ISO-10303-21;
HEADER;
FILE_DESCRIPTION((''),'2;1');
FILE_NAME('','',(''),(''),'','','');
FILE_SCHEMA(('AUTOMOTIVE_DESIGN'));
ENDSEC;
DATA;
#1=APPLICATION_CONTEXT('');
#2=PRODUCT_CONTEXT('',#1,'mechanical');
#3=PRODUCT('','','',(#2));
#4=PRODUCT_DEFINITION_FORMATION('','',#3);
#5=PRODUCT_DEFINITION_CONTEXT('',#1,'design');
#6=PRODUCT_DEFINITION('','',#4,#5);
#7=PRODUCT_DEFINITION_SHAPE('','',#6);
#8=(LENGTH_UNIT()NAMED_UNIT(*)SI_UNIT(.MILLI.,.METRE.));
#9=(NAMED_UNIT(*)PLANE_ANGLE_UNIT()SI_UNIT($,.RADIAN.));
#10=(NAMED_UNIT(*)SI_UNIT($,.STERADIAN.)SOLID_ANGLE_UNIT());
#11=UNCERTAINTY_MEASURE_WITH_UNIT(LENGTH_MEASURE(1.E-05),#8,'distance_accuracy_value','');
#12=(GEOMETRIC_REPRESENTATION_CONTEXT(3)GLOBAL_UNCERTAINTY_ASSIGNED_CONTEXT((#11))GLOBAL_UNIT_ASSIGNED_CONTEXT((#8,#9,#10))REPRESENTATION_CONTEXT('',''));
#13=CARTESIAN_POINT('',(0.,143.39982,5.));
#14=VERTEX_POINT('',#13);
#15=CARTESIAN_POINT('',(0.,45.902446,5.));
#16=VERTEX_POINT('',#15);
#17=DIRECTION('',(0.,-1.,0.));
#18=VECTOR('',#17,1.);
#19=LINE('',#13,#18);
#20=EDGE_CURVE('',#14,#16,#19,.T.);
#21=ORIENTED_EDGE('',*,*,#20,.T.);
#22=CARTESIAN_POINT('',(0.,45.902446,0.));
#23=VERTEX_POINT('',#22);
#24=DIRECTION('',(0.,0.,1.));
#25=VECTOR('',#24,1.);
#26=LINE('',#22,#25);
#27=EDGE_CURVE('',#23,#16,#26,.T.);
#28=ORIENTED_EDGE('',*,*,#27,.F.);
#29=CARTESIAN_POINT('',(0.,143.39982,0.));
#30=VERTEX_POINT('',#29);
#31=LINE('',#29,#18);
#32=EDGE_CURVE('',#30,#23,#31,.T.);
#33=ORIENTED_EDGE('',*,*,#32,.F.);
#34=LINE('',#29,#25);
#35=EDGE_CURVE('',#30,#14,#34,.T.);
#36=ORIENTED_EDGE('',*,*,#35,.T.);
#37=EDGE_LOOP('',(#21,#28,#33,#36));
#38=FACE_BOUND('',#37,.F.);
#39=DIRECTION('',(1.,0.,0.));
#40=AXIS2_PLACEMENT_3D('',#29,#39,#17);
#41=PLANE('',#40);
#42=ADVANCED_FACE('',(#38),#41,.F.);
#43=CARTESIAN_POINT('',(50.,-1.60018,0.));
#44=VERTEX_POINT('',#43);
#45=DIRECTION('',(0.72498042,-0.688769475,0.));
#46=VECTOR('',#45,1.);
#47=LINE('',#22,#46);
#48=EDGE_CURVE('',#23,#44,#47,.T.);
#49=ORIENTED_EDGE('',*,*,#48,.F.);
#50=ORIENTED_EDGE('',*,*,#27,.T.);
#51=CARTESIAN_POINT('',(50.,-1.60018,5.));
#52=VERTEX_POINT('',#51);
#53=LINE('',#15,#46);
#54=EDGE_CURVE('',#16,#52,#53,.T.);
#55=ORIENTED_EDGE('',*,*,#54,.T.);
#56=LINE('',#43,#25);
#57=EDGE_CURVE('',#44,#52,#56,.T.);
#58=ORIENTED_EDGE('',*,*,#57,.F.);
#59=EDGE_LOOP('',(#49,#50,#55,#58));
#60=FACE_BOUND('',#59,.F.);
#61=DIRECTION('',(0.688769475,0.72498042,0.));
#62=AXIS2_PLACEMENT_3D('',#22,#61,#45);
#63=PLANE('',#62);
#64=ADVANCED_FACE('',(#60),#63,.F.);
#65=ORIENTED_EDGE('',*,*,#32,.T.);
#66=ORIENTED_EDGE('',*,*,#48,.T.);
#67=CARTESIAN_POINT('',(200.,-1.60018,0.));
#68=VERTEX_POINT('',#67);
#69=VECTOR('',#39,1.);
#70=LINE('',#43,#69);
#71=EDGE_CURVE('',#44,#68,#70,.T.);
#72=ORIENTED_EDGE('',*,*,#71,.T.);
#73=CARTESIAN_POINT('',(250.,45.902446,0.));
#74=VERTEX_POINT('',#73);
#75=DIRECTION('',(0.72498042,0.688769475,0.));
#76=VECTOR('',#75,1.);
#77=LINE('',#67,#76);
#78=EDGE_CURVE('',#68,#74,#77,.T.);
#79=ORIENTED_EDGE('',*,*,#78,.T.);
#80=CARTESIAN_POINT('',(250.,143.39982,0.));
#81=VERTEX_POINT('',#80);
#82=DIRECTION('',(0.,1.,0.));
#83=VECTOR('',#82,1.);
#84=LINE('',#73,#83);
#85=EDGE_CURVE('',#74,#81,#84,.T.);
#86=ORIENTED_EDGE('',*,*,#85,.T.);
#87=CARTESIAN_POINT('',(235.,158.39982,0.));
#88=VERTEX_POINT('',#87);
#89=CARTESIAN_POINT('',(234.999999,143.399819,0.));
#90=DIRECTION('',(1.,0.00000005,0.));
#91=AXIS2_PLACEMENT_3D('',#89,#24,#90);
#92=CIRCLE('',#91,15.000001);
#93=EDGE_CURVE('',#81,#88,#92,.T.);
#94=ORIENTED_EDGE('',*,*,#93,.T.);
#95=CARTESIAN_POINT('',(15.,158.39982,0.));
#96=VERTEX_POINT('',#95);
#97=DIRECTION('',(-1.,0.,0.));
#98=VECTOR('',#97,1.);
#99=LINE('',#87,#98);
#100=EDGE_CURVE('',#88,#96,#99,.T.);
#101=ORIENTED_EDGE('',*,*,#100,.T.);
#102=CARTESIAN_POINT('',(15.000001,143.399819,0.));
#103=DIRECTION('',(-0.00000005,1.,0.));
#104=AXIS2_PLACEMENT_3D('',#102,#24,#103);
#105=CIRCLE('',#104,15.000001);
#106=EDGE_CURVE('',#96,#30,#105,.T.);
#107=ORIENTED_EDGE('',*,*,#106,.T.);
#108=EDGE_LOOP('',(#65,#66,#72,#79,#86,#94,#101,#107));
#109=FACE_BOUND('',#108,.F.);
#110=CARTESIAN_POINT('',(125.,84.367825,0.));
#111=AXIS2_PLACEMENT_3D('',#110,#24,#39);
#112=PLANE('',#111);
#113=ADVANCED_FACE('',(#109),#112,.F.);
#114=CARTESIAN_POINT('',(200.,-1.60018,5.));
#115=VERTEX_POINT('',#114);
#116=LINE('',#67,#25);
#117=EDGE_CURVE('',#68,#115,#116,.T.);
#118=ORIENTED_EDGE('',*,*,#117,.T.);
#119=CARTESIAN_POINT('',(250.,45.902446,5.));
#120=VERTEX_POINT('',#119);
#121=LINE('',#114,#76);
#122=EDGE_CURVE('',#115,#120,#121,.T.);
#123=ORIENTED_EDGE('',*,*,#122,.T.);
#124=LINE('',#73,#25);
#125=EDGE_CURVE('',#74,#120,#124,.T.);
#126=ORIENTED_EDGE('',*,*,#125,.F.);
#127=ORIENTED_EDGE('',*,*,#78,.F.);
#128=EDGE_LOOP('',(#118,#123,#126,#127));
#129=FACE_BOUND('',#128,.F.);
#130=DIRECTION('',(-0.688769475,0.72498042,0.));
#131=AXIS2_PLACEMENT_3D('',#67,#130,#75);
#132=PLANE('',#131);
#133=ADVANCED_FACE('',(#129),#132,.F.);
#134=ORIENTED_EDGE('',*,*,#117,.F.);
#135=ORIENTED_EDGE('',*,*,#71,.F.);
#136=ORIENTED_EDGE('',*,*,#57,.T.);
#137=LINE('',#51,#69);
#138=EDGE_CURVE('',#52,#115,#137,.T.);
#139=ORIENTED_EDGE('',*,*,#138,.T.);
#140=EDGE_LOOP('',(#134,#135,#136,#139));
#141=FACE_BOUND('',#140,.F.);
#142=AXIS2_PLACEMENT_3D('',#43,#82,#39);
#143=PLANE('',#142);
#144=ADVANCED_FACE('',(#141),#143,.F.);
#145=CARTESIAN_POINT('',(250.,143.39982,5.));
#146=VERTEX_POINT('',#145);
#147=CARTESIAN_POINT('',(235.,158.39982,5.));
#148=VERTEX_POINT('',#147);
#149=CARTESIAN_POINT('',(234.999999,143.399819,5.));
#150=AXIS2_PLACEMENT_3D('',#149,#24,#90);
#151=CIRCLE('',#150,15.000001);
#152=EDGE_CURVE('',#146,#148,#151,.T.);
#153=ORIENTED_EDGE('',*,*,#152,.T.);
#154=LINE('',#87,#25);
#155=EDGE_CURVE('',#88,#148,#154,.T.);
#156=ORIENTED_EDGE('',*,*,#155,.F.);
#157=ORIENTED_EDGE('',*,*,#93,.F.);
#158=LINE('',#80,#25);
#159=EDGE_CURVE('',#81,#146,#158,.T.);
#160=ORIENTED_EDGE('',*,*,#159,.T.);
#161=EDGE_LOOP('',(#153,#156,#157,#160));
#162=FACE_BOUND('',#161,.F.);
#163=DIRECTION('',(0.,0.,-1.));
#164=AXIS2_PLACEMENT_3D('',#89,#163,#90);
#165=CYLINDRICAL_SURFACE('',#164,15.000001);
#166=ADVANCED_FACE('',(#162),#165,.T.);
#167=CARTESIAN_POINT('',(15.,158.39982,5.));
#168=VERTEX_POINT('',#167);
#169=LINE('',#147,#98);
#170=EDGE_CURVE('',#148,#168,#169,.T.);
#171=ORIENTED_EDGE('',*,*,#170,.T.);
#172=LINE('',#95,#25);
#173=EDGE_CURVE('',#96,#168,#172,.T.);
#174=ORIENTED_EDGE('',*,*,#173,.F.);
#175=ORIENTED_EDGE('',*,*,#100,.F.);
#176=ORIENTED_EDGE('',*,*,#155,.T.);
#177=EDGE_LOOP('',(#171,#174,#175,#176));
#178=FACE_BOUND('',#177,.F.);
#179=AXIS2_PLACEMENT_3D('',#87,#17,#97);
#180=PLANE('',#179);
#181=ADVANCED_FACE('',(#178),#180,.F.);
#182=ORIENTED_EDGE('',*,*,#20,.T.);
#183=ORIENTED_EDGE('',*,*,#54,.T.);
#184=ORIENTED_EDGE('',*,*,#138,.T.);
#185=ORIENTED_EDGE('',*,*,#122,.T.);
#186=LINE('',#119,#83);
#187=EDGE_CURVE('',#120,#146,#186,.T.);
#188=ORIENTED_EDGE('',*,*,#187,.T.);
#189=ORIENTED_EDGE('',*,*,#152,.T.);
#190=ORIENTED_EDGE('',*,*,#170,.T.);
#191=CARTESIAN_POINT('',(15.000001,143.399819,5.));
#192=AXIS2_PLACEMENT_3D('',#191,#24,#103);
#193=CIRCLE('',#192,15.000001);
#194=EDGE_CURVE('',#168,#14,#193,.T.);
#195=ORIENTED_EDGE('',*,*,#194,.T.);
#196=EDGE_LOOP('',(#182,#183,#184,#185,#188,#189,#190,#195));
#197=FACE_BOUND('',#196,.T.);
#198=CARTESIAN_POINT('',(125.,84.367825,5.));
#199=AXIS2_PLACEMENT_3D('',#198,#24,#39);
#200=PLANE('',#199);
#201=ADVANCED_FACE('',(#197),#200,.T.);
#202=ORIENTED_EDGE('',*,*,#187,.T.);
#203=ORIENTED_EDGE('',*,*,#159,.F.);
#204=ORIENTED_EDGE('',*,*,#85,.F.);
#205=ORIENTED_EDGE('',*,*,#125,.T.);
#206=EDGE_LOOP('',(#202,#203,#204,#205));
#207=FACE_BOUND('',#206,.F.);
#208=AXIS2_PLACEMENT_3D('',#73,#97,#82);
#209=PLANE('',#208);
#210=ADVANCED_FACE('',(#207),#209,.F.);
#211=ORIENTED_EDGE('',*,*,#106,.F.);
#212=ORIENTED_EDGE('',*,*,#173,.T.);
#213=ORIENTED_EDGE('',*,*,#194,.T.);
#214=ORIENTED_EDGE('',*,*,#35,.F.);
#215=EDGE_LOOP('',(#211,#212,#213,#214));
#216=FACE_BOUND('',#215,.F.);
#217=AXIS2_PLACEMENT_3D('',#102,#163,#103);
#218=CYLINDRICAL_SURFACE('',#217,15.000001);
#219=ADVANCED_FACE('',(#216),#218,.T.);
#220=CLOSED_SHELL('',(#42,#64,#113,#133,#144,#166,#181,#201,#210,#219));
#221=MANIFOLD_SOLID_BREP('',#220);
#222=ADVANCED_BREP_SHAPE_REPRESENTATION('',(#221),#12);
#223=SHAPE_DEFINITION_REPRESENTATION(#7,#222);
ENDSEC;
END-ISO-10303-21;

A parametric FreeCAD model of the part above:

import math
import FreeCAD as App
import Part
import Sketcher

doc = App.newDocument("Part")
params = doc.addObject("Spreadsheet::Sheet", "Params")
for row, (alias, value) in enumerate([
    ("sketch1_radius", "15.000001 mm"),
    ("sketch1_width", "150 mm"),
    ("sketch1_width2", "220 mm"),
    ("pad1_length", "5 mm"),
], start=1):
    params.set(f"A{row}", alias)
    params.set(f"B{row}", "=" + value)
    params.setAlias(f"B{row}", alias)

body = doc.addObject("PartDesign::Body", "Body")

# Sketch on XY plane
sketch1 = doc.addObject("Sketcher::SketchObject", "Sketch")
body.addObject(sketch1)
sketch1.AttachmentSupport = (doc.XY_Plane, [""])
sketch1.MapMode = "FlatFace"
sketch1.addGeometry(Part.LineSegment(App.Vector(0, 45.902446, 0), App.Vector(50, -1.60018, 0)), False)
sketch1.addGeometry(Part.LineSegment(App.Vector(50, -1.60018, 0), App.Vector(200, -1.60018, 0)), False)
sketch1.addGeometry(Part.LineSegment(App.Vector(200, -1.60018, 0), App.Vector(250, 45.902446, 0)), False)
sketch1.addGeometry(Part.LineSegment(App.Vector(250, 45.902446, 0), App.Vector(250, 143.39982, 0)), False)
sketch1.addGeometry(Part.ArcOfCircle(Part.Circle(App.Vector(234.999999, 143.399819, 0), App.Vector(0, 0, 1), 15.000001), math.radians(0.000003), math.radians(89.999997)), False)
sketch1.addGeometry(Part.LineSegment(App.Vector(235, 158.39982, 0), App.Vector(15, 158.39982, 0)), False)
sketch1.addGeometry(Part.ArcOfCircle(Part.Circle(App.Vector(15.000001, 143.399819, 0), App.Vector(0, 0, 1), 15.000001), math.radians(90.000003), math.radians(179.999997)), False)
sketch1.addGeometry(Part.LineSegment(App.Vector(0, 143.39982, 0), App.Vector(0, 45.902446, 0)), False)
sketch1.addConstraint(Sketcher.Constraint("Coincident", 0, 2, 1, 1))
sketch1.addConstraint(Sketcher.Constraint("Coincident", 1, 2, 2, 1))
sketch1.addConstraint(Sketcher.Constraint("Coincident", 2, 2, 3, 1))
sketch1.addConstraint(Sketcher.Constraint("Tangent", 3, 2, 4, 1))
sketch1.addConstraint(Sketcher.Constraint("Tangent", 4, 2, 5, 1))
sketch1.addConstraint(Sketcher.Constraint("Tangent", 5, 2, 6, 1))
sketch1.addConstraint(Sketcher.Constraint("Tangent", 6, 2, 7, 1))
sketch1.addConstraint(Sketcher.Constraint("Coincident", 7, 2, 0, 1))
sketch1.addConstraint(Sketcher.Constraint("Horizontal", 1))
sketch1.addConstraint(Sketcher.Constraint("Vertical", 3))
sketch1.addConstraint(Sketcher.Constraint("Horizontal", 5))
sketch1.addConstraint(Sketcher.Constraint("Vertical", 7))
sketch1.addConstraint(Sketcher.Constraint("Equal", 4, 6))
sketch1.addConstraint(Sketcher.Constraint("PointOnObject", 6, 2, -2))
sketch1.addConstraint(Sketcher.Constraint("Horizontal", 2, 2, 7, 2))
sketch1.addConstraint(Sketcher.Constraint("Equal", 0, 2))
sketch1.addConstraint(Sketcher.Constraint("Radius", 4, 15.000001))
sketch1.addConstraint(Sketcher.Constraint("DistanceX", 1, 1, 1, 2, 150.0))
sketch1.addConstraint(Sketcher.Constraint("DistanceX", 5, 2, 5, 1, 220.0))
sketch1.addConstraint(Sketcher.Constraint("DistanceY", 0, 2, 6, 3, 144.999999))
sketch1.addConstraint(Sketcher.Constraint("Distance", 0, 68.96738))
sketch1.addConstraint(Sketcher.Constraint("DistanceY", -1, 1, 4, 3, 143.399819))
sketch1.setExpression("Constraints[16]", "Params.sketch1_radius")
sketch1.setExpression("Constraints[17]", "Params.sketch1_width")
sketch1.setExpression("Constraints[18]", "Params.sketch1_width2")
pad1 = doc.addObject("PartDesign::Pad", "Pad")
body.addObject(pad1)
pad1.Profile = sketch1
pad1.setExpression("Length", "Params.pad1_length")

doc.recompute()
